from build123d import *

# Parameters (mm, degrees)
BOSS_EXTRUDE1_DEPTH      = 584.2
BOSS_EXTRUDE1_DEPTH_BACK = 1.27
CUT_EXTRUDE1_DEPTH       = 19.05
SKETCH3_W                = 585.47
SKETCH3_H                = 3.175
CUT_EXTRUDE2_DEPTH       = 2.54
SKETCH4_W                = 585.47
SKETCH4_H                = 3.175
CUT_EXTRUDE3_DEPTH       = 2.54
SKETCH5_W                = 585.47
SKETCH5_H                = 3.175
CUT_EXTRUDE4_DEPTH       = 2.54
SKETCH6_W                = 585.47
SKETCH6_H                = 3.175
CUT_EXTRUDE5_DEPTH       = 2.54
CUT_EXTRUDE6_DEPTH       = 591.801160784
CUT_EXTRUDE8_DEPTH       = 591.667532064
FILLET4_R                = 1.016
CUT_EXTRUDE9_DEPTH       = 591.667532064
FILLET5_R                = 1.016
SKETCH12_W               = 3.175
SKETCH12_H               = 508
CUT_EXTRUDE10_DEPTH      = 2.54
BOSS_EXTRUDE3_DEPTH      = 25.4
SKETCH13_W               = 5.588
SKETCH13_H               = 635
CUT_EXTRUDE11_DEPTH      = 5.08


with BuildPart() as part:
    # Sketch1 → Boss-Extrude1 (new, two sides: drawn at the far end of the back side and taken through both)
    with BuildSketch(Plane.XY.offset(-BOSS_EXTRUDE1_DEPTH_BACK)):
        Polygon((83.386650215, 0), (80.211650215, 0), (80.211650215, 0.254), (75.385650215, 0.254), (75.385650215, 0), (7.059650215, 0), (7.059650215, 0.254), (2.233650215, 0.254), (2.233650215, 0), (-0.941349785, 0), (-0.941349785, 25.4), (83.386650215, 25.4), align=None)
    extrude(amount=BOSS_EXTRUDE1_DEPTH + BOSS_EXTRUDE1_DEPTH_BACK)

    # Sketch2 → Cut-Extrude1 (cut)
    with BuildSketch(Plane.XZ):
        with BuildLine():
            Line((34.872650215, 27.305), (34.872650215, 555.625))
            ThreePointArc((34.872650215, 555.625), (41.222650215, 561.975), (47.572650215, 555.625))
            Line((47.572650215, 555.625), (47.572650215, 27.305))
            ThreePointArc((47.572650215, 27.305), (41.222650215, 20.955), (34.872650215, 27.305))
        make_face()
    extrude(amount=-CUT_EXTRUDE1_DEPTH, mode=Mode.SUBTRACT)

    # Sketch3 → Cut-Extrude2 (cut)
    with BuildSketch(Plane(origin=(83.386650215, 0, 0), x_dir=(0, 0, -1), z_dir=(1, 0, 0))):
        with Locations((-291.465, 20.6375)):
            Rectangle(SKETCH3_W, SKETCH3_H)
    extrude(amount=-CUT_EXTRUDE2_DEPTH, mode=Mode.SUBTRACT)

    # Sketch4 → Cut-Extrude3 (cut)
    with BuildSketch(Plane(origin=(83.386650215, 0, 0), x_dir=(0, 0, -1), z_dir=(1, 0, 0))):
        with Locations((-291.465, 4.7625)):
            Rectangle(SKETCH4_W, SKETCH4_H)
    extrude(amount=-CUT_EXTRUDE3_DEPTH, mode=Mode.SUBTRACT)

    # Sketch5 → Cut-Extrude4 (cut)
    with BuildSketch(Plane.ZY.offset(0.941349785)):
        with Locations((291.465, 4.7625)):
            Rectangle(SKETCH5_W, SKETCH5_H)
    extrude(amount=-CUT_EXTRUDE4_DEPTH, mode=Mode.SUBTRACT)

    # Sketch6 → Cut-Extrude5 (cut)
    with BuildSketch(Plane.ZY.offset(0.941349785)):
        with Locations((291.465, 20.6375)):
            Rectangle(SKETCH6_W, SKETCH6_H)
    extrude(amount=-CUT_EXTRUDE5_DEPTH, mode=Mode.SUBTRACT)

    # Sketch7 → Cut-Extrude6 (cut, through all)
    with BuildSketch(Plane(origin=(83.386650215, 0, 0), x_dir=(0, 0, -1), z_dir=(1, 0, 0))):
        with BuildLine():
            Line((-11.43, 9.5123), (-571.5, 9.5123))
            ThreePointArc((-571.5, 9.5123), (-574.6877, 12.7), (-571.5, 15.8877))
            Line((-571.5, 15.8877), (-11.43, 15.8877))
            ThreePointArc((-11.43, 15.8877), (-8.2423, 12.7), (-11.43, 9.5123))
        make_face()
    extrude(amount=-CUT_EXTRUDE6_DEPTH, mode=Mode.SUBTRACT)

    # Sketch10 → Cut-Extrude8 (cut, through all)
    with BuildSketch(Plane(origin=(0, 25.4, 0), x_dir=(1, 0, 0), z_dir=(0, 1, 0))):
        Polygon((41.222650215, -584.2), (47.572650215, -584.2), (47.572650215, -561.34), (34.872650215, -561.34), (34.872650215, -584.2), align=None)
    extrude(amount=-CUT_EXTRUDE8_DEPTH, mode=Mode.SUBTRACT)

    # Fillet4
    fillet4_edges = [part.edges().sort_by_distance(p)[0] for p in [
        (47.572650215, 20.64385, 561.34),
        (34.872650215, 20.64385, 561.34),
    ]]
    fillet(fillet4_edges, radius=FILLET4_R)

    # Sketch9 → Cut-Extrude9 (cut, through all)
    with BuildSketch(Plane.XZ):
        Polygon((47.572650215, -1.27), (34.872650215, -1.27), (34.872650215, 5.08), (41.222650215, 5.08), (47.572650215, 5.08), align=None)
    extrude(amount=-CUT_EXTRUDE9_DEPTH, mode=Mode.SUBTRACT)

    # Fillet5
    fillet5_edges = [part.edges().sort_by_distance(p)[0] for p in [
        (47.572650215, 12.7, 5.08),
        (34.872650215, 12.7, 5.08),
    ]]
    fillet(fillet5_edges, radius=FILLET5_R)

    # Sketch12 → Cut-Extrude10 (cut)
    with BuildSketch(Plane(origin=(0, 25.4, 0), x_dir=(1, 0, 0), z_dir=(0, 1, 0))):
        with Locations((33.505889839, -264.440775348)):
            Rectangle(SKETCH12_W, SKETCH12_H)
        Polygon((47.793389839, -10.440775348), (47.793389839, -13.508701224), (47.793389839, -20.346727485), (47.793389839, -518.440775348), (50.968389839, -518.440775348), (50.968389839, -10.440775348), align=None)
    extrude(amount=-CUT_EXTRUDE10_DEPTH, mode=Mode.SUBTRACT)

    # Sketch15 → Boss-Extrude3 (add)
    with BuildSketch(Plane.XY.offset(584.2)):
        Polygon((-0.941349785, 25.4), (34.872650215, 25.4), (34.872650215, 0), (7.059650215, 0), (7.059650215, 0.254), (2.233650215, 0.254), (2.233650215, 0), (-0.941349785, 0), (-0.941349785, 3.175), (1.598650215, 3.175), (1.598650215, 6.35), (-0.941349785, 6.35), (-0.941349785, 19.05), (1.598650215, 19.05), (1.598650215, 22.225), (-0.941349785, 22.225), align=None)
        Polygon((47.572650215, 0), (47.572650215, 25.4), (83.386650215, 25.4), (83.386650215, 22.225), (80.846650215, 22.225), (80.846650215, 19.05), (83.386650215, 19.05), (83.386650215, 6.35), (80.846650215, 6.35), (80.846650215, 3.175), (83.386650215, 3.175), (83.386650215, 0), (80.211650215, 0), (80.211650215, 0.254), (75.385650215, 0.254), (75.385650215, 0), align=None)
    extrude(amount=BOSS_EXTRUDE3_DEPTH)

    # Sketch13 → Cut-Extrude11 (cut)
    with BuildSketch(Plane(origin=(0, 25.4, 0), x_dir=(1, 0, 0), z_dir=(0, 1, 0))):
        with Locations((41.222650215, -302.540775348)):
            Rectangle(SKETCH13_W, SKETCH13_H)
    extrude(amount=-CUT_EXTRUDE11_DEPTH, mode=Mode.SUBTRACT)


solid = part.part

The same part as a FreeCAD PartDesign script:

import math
import FreeCAD as App
import Part
import Sketcher
from FreeCAD import Vector
Q = App.Units.Quantity


def edges_at(feature, points):
    """Names of the edges that pass closest to the given points."""
    edges = feature.Shape.Edges
    near = lambda p: min(range(len(edges)), key=lambda i: edges[i].distToShape(Part.Vertex(*p))[0])
    return sorted({f"Edge{near(p) + 1}" for p in points})


def add_polygon(sketch, points):
    """Adds a closed chain of lines whose ends are joined by coincident constraints."""
    first, n = sketch.GeometryCount, len(points)
    for a, b in zip(points, points[1:] + points[:1]):
        sketch.addGeometry(Part.LineSegment(App.Vector(*a, 0), App.Vector(*b, 0)), False)
    for i in range(n):
        sketch.addConstraint(Sketcher.Constraint("Coincident", first + i, 2, first + (i + 1) % n, 1))

doc = App.newDocument("Part")
body = doc.addObject("PartDesign::Body", "Body")

sketch1 = body.newObject("Sketcher::SketchObject", "Sketch")
sketch1.AttachmentSupport = (doc.getObject("XY_Plane"), [""])
sketch1.MapMode = "FlatFace"
add_polygon(sketch1, [(80.21165, 0), (83.38665, 0), (83.38665, 25.4), (-0.94135, 25.4), (-0.94135, 0), (2.23365, 0), (2.23365, 0.254), (7.05965, 0.254), (7.05965, 0), (75.38565, 0), (75.38565, 0.254), (80.21165, 0.254)])
sketch1.addConstraint([
    Sketcher.Constraint("Horizontal", 0),
    Sketcher.Constraint("Vertical", 1),
    Sketcher.Constraint("Horizontal", 2),
    Sketcher.Constraint("Vertical", 3),
    Sketcher.Constraint("Horizontal", 4),
    Sketcher.Constraint("Vertical", 5),
    Sketcher.Constraint("Horizontal", 6),
    Sketcher.Constraint("Vertical", 7),
    Sketcher.Constraint("Horizontal", 8),
    Sketcher.Constraint("Vertical", 9),
    Sketcher.Constraint("Horizontal", 10),
    Sketcher.Constraint("Vertical", 11),
    Sketcher.Constraint("PointOnObject", 0, 2, -1),
    Sketcher.Constraint("PointOnObject", 3, 2, -1),
    Sketcher.Constraint("PointOnObject", 7, 2, -1),
    Sketcher.Constraint("Horizontal", 6, 2, 9, 2),
    Sketcher.Constraint("Equal", 0, 4),
    Sketcher.Constraint("Equal", 6, 10),
    Sketcher.Constraint("DistanceY", 1, 1, 1, 2, Q("1 in")),
    Sketcher.Constraint("DistanceX", 2, 2, 2, 1, Q("3.32 in")),
    Sketcher.Constraint("DistanceX", 6, 1, 6, 2, Q("0.19 in")),
    Sketcher.Constraint("DistanceX", 8, 1, 8, 2, Q("2.69 in")),
    Sketcher.Constraint("DistanceY", 5, 1, 5, 2, Q("0.01 in")),
    Sketcher.Constraint("DistanceX", -1, 1, 0, 2, Q("83.38665 mm")),
])
pad1 = body.newObject("PartDesign::Pad", "Pad")
pad1.Profile = sketch1
pad1.Type = "TwoLengths"
pad1.Length = Q("23 in")
pad1.Length2 = Q("0.05 in")

sketch2 = body.newObject("Sketcher::SketchObject", "Sketch001")
sketch2.AttachmentSupport = (doc.getObject("XZ_Plane"), [""])
sketch2.MapMode = "FlatFace"
sketch2.addGeometry([
    Part.LineSegment(Vector(34.87265, 555.625, 0), Vector(34.87265, 27.305, 0)),
    Part.ArcOfCircle(Part.Circle(Vector(41.22265, 27.305, 0), Vector(0, 0, 1), 6.35), math.radians(180), math.radians(360)),
    Part.LineSegment(Vector(47.57265, 27.305, 0), Vector(47.57265, 555.625, 0)),
    Part.ArcOfCircle(Part.Circle(Vector(41.22265, 555.625, 0), Vector(0, 0, 1), 6.35), math.radians(0), math.radians(180)),
], False)
sketch2.addConstraint([
    Sketcher.Constraint("Tangent", 0, 2, 1, 1),
    Sketcher.Constraint("Tangent", 1, 2, 2, 1),
    Sketcher.Constraint("Tangent", 2, 2, 3, 1),
    Sketcher.Constraint("Tangent", 3, 2, 0, 1),
    Sketcher.Constraint("Vertical", 0),
    Sketcher.Constraint("Vertical", 2),
    Sketcher.Constraint("Radius", 1, Q("0.25 in")),
    Sketcher.Constraint("DistanceY", 0, 2, 0, 1, Q("20.8 in")),
    Sketcher.Constraint("DistanceY", -1, 1, 1, 3, Q("1.075 in")),
    Sketcher.Constraint("DistanceX", -1, 1, 1, 3, Q("41.22265 mm")),
])
pocket1 = body.newObject("PartDesign::Pocket", "Pocket")
pocket1.Profile = sketch2
pocket1.Length = Q("0.75 in")

sketch3 = body.newObject("Sketcher::SketchObject", "Sketch002")
sketch3.AttachmentSupport = (doc.getObject("YZ_Plane"), [""])
sketch3.MapMode = "FlatFace"
sketch3.AttachmentOffset = App.Placement(Vector(0, 0, 83.38665), App.Rotation())
add_polygon(sketch3, [(22.225, 584.2), (19.05, 584.2), (19.05, -1.27), (22.225, -1.27)])
sketch3.addConstraint([
    Sketcher.Constraint("Horizontal", 0),
    Sketcher.Constraint("Vertical", 1),
    Sketcher.Constraint("Horizontal", 2),
    Sketcher.Constraint("Vertical", 3),
    Sketcher.Constraint("DistanceY", -1, 1, 0, 2, Q("23 in")),
    Sketcher.Constraint("DistanceY", 1, 2, 1, 1, Q("23.05 in")),
    Sketcher.Constraint("DistanceX", 0, 2, 0, 1, Q("0.125 in")),
    Sketcher.Constraint("DistanceX", -1, 1, 0, 2, Q("0.75 in")),
])
pocket2 = body.newObject("PartDesign::Pocket", "Pocket001")
pocket2.Profile = sketch3
pocket2.Length = Q("0.1 in")

sketch4 = body.newObject("Sketcher::SketchObject", "Sketch003")
sketch4.AttachmentSupport = (doc.getObject("YZ_Plane"), [""])
sketch4.MapMode = "FlatFace"
sketch4.AttachmentOffset = App.Placement(Vector(0, 0, 83.38665), App.Rotation())
add_polygon(sketch4, [(6.35, 584.2), (3.175, 584.2), (3.175, -1.27), (6.35, -1.27)])
sketch4.addConstraint([
    Sketcher.Constraint("Horizontal", 0),
    Sketcher.Constraint("Vertical", 1),
    Sketcher.Constraint("Horizontal", 2),
    Sketcher.Constraint("Vertical", 3),
    Sketcher.Constraint("DistanceY", -1, 1, 0, 2, Q("23 in")),
    Sketcher.Constraint("DistanceY", 1, 2, 1, 1, Q("23.05 in")),
    Sketcher.Constraint("DistanceX", 0, 2, 0, 1, Q("0.125 in")),
    Sketcher.Constraint("DistanceX", -1, 1, 2, 2, Q("0.25 in")),
])
pocket3 = body.newObject("PartDesign::Pocket", "Pocket002")
pocket3.Profile = sketch4
pocket3.Length = Q("0.1 in")

sketch5 = body.newObject("Sketcher::SketchObject", "Sketch004")
sketch5.AttachmentSupport = (doc.getObject("YZ_Plane"), [""])
sketch5.MapMode = "FlatFace"
sketch5.AttachmentOffset = App.Placement(Vector(0, 0, -0.94135), App.Rotation())
add_polygon(sketch5, [(6.35, -1.27), (3.175, -1.27), (3.175, 584.2), (6.35, 584.2)])
sketch5.addConstraint([
    Sketcher.Constraint("Horizontal", 0),
    Sketcher.Constraint("Vertical", 1),
    Sketcher.Constraint("Horizontal", 2),
    Sketcher.Constraint("Vertical", 3),
    Sketcher.Constraint("DistanceY", -1, 1, 1, 2, Q("23 in")),
    Sketcher.Constraint("DistanceY", 1, 1, 1, 2, Q("23.05 in")),
    Sketcher.Constraint("DistanceX", 0, 2, 0, 1, Q("0.125 in")),
    Sketcher.Constraint("DistanceX", -1, 1, 2, 2, Q("0.25 in")),
])
pocket4 = body.newObject("PartDesign::Pocket", "Pocket003")
pocket4.Profile = sketch5
pocket4.Length = Q("0.1 in")
pocket4.Reversed = True

sketch6 = body.newObject("Sketcher::SketchObject", "Sketch005")
sketch6.AttachmentSupport = (doc.getObject("YZ_Plane"), [""])
sketch6.MapMode = "FlatFace"
sketch6.AttachmentOffset = App.Placement(Vector(0, 0, -0.94135), App.Rotation())
add_polygon(sketch6, [(22.225, -1.27), (19.05, -1.27), (19.05, 584.2), (22.225, 584.2)])
sketch6.addConstraint([
    Sketcher.Constraint("Horizontal", 0),
    Sketcher.Constraint("Vertical", 1),
    Sketcher.Constraint("Horizontal", 2),
    Sketcher.Constraint("Vertical", 3),
    Sketcher.Constraint("DistanceY", -1, 1, 1, 2, Q("23 in")),
    Sketcher.Constraint("DistanceY", 1, 1, 1, 2, Q("23.05 in")),
    Sketcher.Constraint("DistanceX", 0, 2, 0, 1, Q("0.125 in")),
    Sketcher.Constraint("DistanceX", -1, 1, 0, 2, Q("0.75 in")),
])
pocket5 = body.newObject("PartDesign::Pocket", "Pocket004")
pocket5.Profile = sketch6
pocket5.Length = Q("0.1 in")
pocket5.Reversed = True

sketch7 = body.newObject("Sketcher::SketchObject", "Sketch006")
sketch7.AttachmentSupport = (doc.getObject("YZ_Plane"), [""])
sketch7.MapMode = "FlatFace"
sketch7.AttachmentOffset = App.Placement(Vector(0, 0, 83.38665), App.Rotation())
sketch7.addGeometry([
    Part.LineSegment(Vector(9.5123, 571.5, 0), Vector(9.5123, 11.43, 0)),
    Part.ArcOfCircle(Part.Circle(Vector(12.7, 11.43, 0), Vector(0, 0, 1), 3.1877), math.radians(180), math.radians(360)),
    Part.LineSegment(Vector(15.8877, 11.43, 0), Vector(15.8877, 571.5, 0)),
    Part.ArcOfCircle(Part.Circle(Vector(12.7, 571.5, 0), Vector(0, 0, 1), 3.1877), math.radians(0), math.radians(180)),
], False)
sketch7.addConstraint([
    Sketcher.Constraint("Tangent", 0, 2, 1, 1),
    Sketcher.Constraint("Tangent", 1, 2, 2, 1),
    Sketcher.Constraint("Tangent", 2, 2, 3, 1),
    Sketcher.Constraint("Tangent", 3, 2, 0, 1),
    Sketcher.Constraint("Vertical", 0),
    Sketcher.Constraint("Vertical", 2),
    Sketcher.Constraint("DistanceY", 0, 2, 0, 1, Q("22.05 in")),
    Sketcher.Constraint("DistanceX", -1, 1, 1, 3, Q("0.5 in")),
    Sketcher.Constraint("DistanceY", -1, 1, 3, 3, Q("22.5 in")),
    Sketcher.Constraint("Radius", 1, Q("0.1255 in")),
])
pocket6 = body.newObject("PartDesign::Pocket", "Pocket005")
pocket6.Profile = sketch7
pocket6.Type = "ThroughAll"

sketch8 = body.newObject("Sketcher::SketchObject", "Sketch007")
sketch8.AttachmentSupport = (doc.getObject("XZ_Plane"), [""])
sketch8.MapMode = "FlatFace"
sketch8.AttachmentOffset = App.Placement(Vector(0, 0, -1 * 25.4), App.Rotation())
add_polygon(sketch8, [(47.57265, 584.2), (47.57265, 561.34), (34.87265, 561.34), (34.87265, 584.2)])
sketch8.addConstraint([
    Sketcher.Constraint("Vertical", 0),
    Sketcher.Constraint("Horizontal", 1),
    Sketcher.Constraint("Vertical", 2),
    Sketcher.Constraint("Horizontal", 3),
    Sketcher.Constraint("DistanceX", 1, 2, 1, 1, Q("0.5 in")),
    Sketcher.Constraint("DistanceY", 0, 2, 0, 1, Q("0.9 in")),
    Sketcher.Constraint("DistanceY", -1, 1, 2, 2, Q("23 in")),
    Sketcher.Constraint("DistanceX", -1, 1, 0, 2, Q("47.57265 mm")),
])
pocket7 = body.newObject("PartDesign::Pocket", "Pocket006")
pocket7.Profile = sketch8
pocket7.Type = "ThroughAll"
pocket7.Reversed = True
doc.recompute()

fillet = body.newObject("PartDesign::Fillet", "Fillet")
fillet.Base = (pocket7, edges_at(pocket7, [(47.573, 20.644, 561.34), (34.873, 20.644, 561.34)]))
fillet.Radius = Q("0.04 in")

sketch9 = body.newObject("Sketcher::SketchObject", "Sketch008")
sketch9.AttachmentSupport = (doc.getObject("XZ_Plane"), [""])
sketch9.MapMode = "FlatFace"
add_polygon(sketch9, [(34.87265, -1.27), (47.57265, -1.27), (47.57265, 5.08), (34.87265, 5.08)])
sketch9.addConstraint([
    Sketcher.Constraint("Horizontal", 0),
    Sketcher.Constraint("Vertical", 1),
    Sketcher.Constraint("Horizontal", 2),
    Sketcher.Constraint("Vertical", 3),
    Sketcher.Constraint("DistanceX", 0, 1, 0, 2, Q("0.5 in")),
    Sketcher.Constraint("DistanceY", 1, 1, 1, 2, Q("0.25 in")),
    Sketcher.Constraint("DistanceY", -1, 1, 1, 2, Q("0.2 in")),
    Sketcher.Constraint("DistanceX", -1, 1, 0, 2, Q("47.57265 mm")),
])
pocket8 = body.newObject("PartDesign::Pocket", "Pocket007")
pocket8.Profile = sketch9
pocket8.Type = "ThroughAll"
doc.recompute()

fillet2 = body.newObject("PartDesign::Fillet", "Fillet001")
fillet2.Base = (pocket8, edges_at(pocket8, [(47.573, 12.7, 5.08), (34.873, 12.7, 5.08)]))
fillet2.Radius = Q("0.04 in")

sketch10 = body.newObject("Sketcher::SketchObject", "Sketch009")
sketch10.AttachmentSupport = (doc.getObject("XZ_Plane"), [""])
sketch10.MapMode = "FlatFace"
sketch10.AttachmentOffset = App.Placement(Vector(0, 0, -1 * 25.4), App.Rotation())
add_polygon(sketch10, [(31.91839, 10.440775), (31.91839, 518.440775), (35.09339, 518.440775), (35.09339, 10.440775)])
add_polygon(sketch10, [(47.79339, 10.440775), (47.79339, 518.440775), (50.96839, 518.440775), (50.96839, 10.440775)])
sketch10.addConstraint([
    Sketcher.Constraint("Vertical", 0),
    Sketcher.Constraint("Horizontal", 1),
    Sketcher.Constraint("Vertical", 2),
    Sketcher.Constraint("Horizontal", 3),
    Sketcher.Constraint("Vertical", 4),
    Sketcher.Constraint("Horizontal", 5),
    Sketcher.Constraint("Vertical", 6),
    Sketcher.Constraint("Horizontal", 7),
    Sketcher.Constraint("Horizontal", 1, 2, 4, 2),
    Sketcher.Constraint("Horizontal", 3, 2, 6, 2),
    Sketcher.Constraint("Equal", 3, 5),
    Sketcher.Constraint("DistanceY", 0, 1, 0, 2, Q("20 in")),
    Sketcher.Constraint("DistanceX", 1, 2, 4, 2, Q("0.5 in")),
    Sketcher.Constraint("DistanceX", 1, 1, 1, 2, Q("0.125 in")),
    Sketcher.Constraint("DistanceX", -1, 1, 0, 2, Q("31.91839 mm")),
    Sketcher.Constraint("DistanceY", -1, 1, 0, 2, Q("518.440775 mm")),
])
pocket9 = body.newObject("PartDesign::Pocket", "Pocket008")
pocket9.Profile = sketch10
pocket9.Length = Q("0.1 in")
pocket9.Reversed = True

sketch11 = body.newObject("Sketcher::SketchObject", "Sketch010")
sketch11.AttachmentSupport = (doc.getObject("XY_Plane"), [""])
sketch11.MapMode = "FlatFace"
sketch11.AttachmentOffset = App.Placement(Vector(0, 0, 23 * 25.4), App.Rotation())
add_polygon(sketch11, [(34.87265, 25.4), (-0.94135, 25.4), (-0.94135, 22.225), (1.59865, 22.225), (1.59865, 19.05), (-0.94135, 19.05), (-0.94135, 6.35), (1.59865, 6.35), (1.59865, 3.175), (-0.94135, 3.175), (-0.94135, 0), (2.23365, 0), (2.23365, 0.254), (7.05965, 0.254), (7.05965, 0), (34.87265, 0)])
add_polygon(sketch11, [(47.57265, 25.4), (47.57265, 0), (75.38565, 0), (75.38565, 0.254), (80.21165, 0.254), (80.21165, 0), (83.38665, 0), (83.38665, 3.175), (80.84665, 3.175), (80.84665, 6.35), (83.38665, 6.35), (83.38665, 19.05), (80.84665, 19.05), (80.84665, 22.225), (83.38665, 22.225), (83.38665, 25.4)])
sketch11.addConstraint([
    Sketcher.Constraint("Horizontal", 0),
    Sketcher.Constraint("Vertical", 1),
    Sketcher.Constraint("Horizontal", 2),
    Sketcher.Constraint("Vertical", 3),
    Sketcher.Constraint("Horizontal", 4),
    Sketcher.Constraint("Vertical", 5),
    Sketcher.Constraint("Horizontal", 6),
    Sketcher.Constraint("Vertical", 7),
    Sketcher.Constraint("Horizontal", 8),
    Sketcher.Constraint("Vertical", 9),
    Sketcher.Constraint("Horizontal", 10),
    Sketcher.Constraint("Vertical", 11),
    Sketcher.Constraint("Horizontal", 12),
    Sketcher.Constraint("Vertical", 13),
    Sketcher.Constraint("Horizontal", 14),
    Sketcher.Constraint("Vertical", 15),
    Sketcher.Constraint("Vertical", 16),
    Sketcher.Constraint("Horizontal", 17),
    Sketcher.Constraint("Vertical", 18),
    Sketcher.Constraint("Horizontal", 19),
    Sketcher.Constraint("Vertical", 20),
    Sketcher.Constraint("Horizontal", 21),
    Sketcher.Constraint("Vertical", 22),
    Sketcher.Constraint("Horizontal", 23),
    Sketcher.Constraint("Vertical", 24),
    Sketcher.Constraint("Horizontal", 25),
    Sketcher.Constraint("Vertical", 26),
    Sketcher.Constraint("Horizontal", 27),
    Sketcher.Constraint("Vertical", 28),
    Sketcher.Constraint("Horizontal", 29),
    Sketcher.Constraint("Vertical", 30),
    Sketcher.Constraint("Horizontal", 31),
    Sketcher.Constraint("PointOnObject", 9, 2, -1),
    Sketcher.Constraint("PointOnObject", 13, 2, -1),
    Sketcher.Constraint("PointOnObject", 16, 2, -1),
    Sketcher.Constraint("PointOnObject", 20, 2, -1),
    Sketcher.Constraint("Horizontal", 12, 2, 18, 2),
    Sketcher.Constraint("Horizontal", 8, 2, 22, 2),
    Sketcher.Constraint("Horizontal", 6, 2, 24, 2),
    Sketcher.Constraint("Horizontal", 4, 2, 26, 2),
    Sketcher.Constraint("Horizontal", 2, 2, 28, 2),
    Sketcher.Constraint("Horizontal", 15, 2, 30, 2),
    Sketcher.Constraint("Vertical", 1, 2, 4, 2),
    Sketcher.Constraint("Vertical", 3, 2, 6, 2),
    Sketcher.Constraint("Vertical", 5, 2, 8, 2),
    Sketcher.Constraint("Vertical", 22, 2, 25, 2),
    Sketcher.Constraint("Vertical", 24, 2, 27, 2),
    Sketcher.Constraint("Vertical", 26, 2, 29, 2),
    Sketcher.Constraint("Equal", 14, 17),
    Sketcher.Constraint("Equal", 12, 19),
    Sketcher.Constraint("Equal", 10, 21),
    Sketcher.Constraint("Equal", 8, 23),
    Sketcher.Constraint("Equal", 21, 1),
    Sketcher.Constraint("Equal", 1, 3),
    Sketcher.Constraint("Equal", 3, 7),
    Sketcher.Constraint("Equal", 7, 9),
    Sketcher.Constraint("DistanceY", 15, 1, 15, 2, Q("1 in")),
    Sketcher.Constraint("DistanceX", 2, 1, 2, 2, Q("0.1 in")),
    Sketcher.Constraint("DistanceY", 5, 2, 5, 1, Q("0.5 in")),
    Sketcher.Constraint("DistanceX", 0, 2, 0, 1, Q("1.41 in")),
    Sketcher.Constraint("DistanceX", 12, 1, 12, 2, Q("0.19 in")),
    Sketcher.Constraint("DistanceY", 11, 1, 11, 2, Q("0.01 in")),
    Sketcher.Constraint("DistanceX", 14, 2, 16, 2, Q("0.5 in")),
    Sketcher.Constraint("DistanceX", 0, 2, -1, 1, Q("0.94135 mm")),
])
pad2 = body.newObject("PartDesign::Pad", "Pad001")
pad2.Profile = sketch11
pad2.Length = Q("1 in")

sketch12 = body.newObject("Sketcher::SketchObject", "Sketch011")
sketch12.AttachmentSupport = (doc.getObject("XZ_Plane"), [""])
sketch12.MapMode = "FlatFace"
sketch12.AttachmentOffset = App.Placement(Vector(0, 0, -1 * 25.4), App.Rotation())
add_polygon(sketch12, [(38.42865, -14.959225), (38.42865, 620.040775), (44.01665, 620.040775), (44.01665, -14.959225)])
sketch12.addConstraint([
    Sketcher.Constraint("Vertical", 0),
    Sketcher.Constraint("Horizontal", 1),
    Sketcher.Constraint("Vertical", 2),
    Sketcher.Constraint("Horizontal", 3),
    Sketcher.Constraint("DistanceY", 0, 1, 0, 2, Q("25 in")),
    Sketcher.Constraint("DistanceX", 1, 1, 1, 2, Q("0.22 in")),
    Sketcher.Constraint("DistanceX", -1, 1, 0, 2, Q("38.42865 mm")),
    Sketcher.Constraint("DistanceY", -1, 1, 0, 2, Q("620.040775 mm")),
])
pocket10 = body.newObject("PartDesign::Pocket", "Pocket009")
pocket10.Profile = sketch12
pocket10.Length = Q("0.2 in")
pocket10.Reversed = True

doc.recompute()
